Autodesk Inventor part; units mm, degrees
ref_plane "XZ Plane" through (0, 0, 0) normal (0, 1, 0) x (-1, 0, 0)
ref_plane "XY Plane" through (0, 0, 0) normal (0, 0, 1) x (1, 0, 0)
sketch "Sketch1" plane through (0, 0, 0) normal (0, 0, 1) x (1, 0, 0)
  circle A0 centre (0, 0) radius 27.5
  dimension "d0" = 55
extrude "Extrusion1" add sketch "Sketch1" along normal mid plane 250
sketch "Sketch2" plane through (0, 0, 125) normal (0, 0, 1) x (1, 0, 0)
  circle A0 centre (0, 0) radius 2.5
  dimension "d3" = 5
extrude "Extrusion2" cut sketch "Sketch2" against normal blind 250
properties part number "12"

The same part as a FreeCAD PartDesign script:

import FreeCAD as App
import Part
import Sketcher

V = App.Vector
Q = App.Units.Quantity

doc = App.newDocument("Part")
body = doc.addObject("PartDesign::Body", "Body")

# Sketch on XY plane
sketch1 = body.newObject("Sketcher::SketchObject", "Sketch")
sketch1.AttachmentSupport = (doc.getObject("XY_Plane"), [""])
sketch1.MapMode = "FlatFace"
sketch1.addGeometry(Part.Circle(V(0, 0, 0), V(0, 0, 1), 28), False)
sketch1.addConstraint([
    Sketcher.Constraint("Coincident", 0, 3, -1, 1),
    Sketcher.Constraint("Diameter", 0, Q("55 mm")),
])
pad1 = body.newObject("PartDesign::Pad", "Pad")
pad1.Profile = sketch1
pad1.Length = 250
pad1.Midplane = True

# Sketch on XY plane
sketch2 = body.newObject("Sketcher::SketchObject", "Sketch001")
sketch2.AttachmentSupport = (doc.getObject("XY_Plane"), [""])
sketch2.MapMode = "FlatFace"
sketch2.AttachmentOffset = App.Placement(V(0, 0, 125), App.Rotation())
sketch2.addGeometry(Part.Circle(V(0, 0, 0), V(0, 0, 1), 2.5), False)
sketch2.addConstraint([
    Sketcher.Constraint("Coincident", 0, 3, -1, 1),
    Sketcher.Constraint("Diameter", 0, Q("5 mm")),
])
pocket1 = body.newObject("PartDesign::Pocket", "Pocket")
pocket1.Profile = sketch2
pocket1.Length = 250

doc.recompute()
